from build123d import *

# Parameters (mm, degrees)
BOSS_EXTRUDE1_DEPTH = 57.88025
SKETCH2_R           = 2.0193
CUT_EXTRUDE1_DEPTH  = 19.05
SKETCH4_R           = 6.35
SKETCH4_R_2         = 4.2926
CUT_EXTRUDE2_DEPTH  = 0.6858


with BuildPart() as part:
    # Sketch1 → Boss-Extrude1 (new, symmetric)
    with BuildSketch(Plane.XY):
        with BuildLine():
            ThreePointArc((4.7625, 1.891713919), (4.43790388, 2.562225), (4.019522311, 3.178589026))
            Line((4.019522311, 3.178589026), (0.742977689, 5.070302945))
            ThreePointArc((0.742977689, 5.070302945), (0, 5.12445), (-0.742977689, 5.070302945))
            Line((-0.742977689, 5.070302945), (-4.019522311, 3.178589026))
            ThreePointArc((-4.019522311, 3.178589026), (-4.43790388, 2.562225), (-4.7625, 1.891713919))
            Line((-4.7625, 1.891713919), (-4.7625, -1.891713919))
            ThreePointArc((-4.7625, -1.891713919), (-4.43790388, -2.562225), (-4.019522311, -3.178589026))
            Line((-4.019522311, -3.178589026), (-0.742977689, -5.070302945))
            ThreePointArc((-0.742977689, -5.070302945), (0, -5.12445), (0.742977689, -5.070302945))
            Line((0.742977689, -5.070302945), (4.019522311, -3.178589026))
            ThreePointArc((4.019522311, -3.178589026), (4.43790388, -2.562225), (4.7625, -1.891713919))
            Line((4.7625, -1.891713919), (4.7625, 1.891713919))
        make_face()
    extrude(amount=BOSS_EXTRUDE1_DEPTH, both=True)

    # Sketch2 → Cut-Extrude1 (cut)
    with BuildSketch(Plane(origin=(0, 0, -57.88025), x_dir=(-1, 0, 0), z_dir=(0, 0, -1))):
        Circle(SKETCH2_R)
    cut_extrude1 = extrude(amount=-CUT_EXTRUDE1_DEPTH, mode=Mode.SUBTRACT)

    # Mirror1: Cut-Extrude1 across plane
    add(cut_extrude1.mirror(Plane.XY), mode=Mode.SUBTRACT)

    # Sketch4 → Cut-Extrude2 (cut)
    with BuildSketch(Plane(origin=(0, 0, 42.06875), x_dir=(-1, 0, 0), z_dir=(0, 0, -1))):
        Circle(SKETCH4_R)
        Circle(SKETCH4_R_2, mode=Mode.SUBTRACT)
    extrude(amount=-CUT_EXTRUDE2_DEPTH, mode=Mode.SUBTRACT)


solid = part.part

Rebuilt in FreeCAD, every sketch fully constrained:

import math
import FreeCAD as App
import Part
import Sketcher

V = App.Vector
Q = App.Units.Quantity

doc = App.newDocument("Part")
params = doc.addObject("Spreadsheet::Sheet", "Params")
for row, (alias, value) in enumerate([
    ("pad1_length", "4.5575 in"),
    ("sketch2_diameter", "0.159 in"),
    ("pocket1_length", "0.75 in"),
    ("sketch3_diameter", "0.5 in"),
    ("sketch3_diameter2", "0.338 in"),
    ("pocket2_length", "0.027 in"),
], start=1):
    params.set(f"A{row}", alias)
    params.set(f"B{row}", "=" + value)
    params.setAlias(f"B{row}", alias)

body = doc.addObject("PartDesign::Body", "Body")

sketch1 = body.newObject("Sketcher::SketchObject", "Sketch")
sketch1.AttachmentSupport = (doc.getObject("XY_Plane"), [""])
sketch1.MapMode = "FlatFace"
sketch1.addGeometry([
    Part.ArcOfCircle(Part.Circle(V(0, 0, 0), V(0, 0, 1), 5.1), math.radians(21.66), math.radians(38.34)),
    Part.LineSegment(V(4, 3.2, 0), V(0.7, 5.1, 0)),
    Part.ArcOfCircle(Part.Circle(V(0, 0, 0), V(0, 0, 1), 5.1), math.radians(81.66), math.radians(98.34)),
    Part.LineSegment(V(-0.7, 5.1, 0), V(-4, 3.2, 0)),
    Part.ArcOfCircle(Part.Circle(V(0, 0, 0), V(0, 0, 1), 5.1), math.radians(141.66), math.radians(158.34)),
    Part.LineSegment(V(-4.8, 1.9, 0), V(-4.8, -1.9, 0)),
    Part.ArcOfCircle(Part.Circle(V(0, 0, 0), V(0, 0, 1), 5.1), math.radians(-158.34), math.radians(-141.66)),
    Part.LineSegment(V(-4, -3.2, 0), V(-0.7, -5.1, 0)),
    Part.ArcOfCircle(Part.Circle(V(0, 0, 0), V(0, 0, 1), 5.1), math.radians(-98.34), math.radians(-81.66)),
    Part.LineSegment(V(0.7, -5.1, 0), V(4, -3.2, 0)),
    Part.ArcOfCircle(Part.Circle(V(0, 0, 0), V(0, 0, 1), 5.1), math.radians(-38.34), math.radians(-21.66)),
    Part.LineSegment(V(4.8, -1.9, 0), V(4.8, 1.9, 0)),
], False)
sketch1.addConstraint([
    Sketcher.Constraint("Coincident", 0, 2, 1, 1),
    Sketcher.Constraint("Coincident", 1, 2, 2, 1),
    Sketcher.Constraint("Coincident", 2, 2, 3, 1),
    Sketcher.Constraint("Coincident", 3, 2, 4, 1),
    Sketcher.Constraint("Coincident", 4, 2, 5, 1),
    Sketcher.Constraint("Coincident", 5, 2, 6, 1),
    Sketcher.Constraint("Coincident", 6, 2, 7, 1),
    Sketcher.Constraint("Coincident", 7, 2, 8, 1),
    Sketcher.Constraint("Coincident", 8, 2, 9, 1),
    Sketcher.Constraint("Coincident", 9, 2, 10, 1),
    Sketcher.Constraint("Coincident", 10, 2, 11, 1),
    Sketcher.Constraint("Coincident", 11, 2, 0, 1),
    Sketcher.Constraint("Vertical", 5),
    Sketcher.Constraint("Vertical", 11),
    Sketcher.Constraint("Coincident", 0, 3, -1, 1),
    Sketcher.Constraint("Coincident", 2, 3, -1, 1),
    Sketcher.Constraint("Coincident", 4, 3, -1, 1),
    Sketcher.Constraint("Coincident", 6, 3, -1, 1),
    Sketcher.Constraint("Coincident", 8, 3, -1, 1),
    Sketcher.Constraint("Coincident", 10, 3, -1, 1),
    Sketcher.Constraint("Equal", 0, 2),
    Sketcher.Constraint("Equal", 2, 4),
    Sketcher.Constraint("Equal", 4, 6),
    Sketcher.Constraint("Equal", 6, 8),
    Sketcher.Constraint("Equal", 8, 10),
    Sketcher.Constraint("Parallel", 1, 7),
    Sketcher.Constraint("Parallel", 3, 9),
    Sketcher.Constraint("Horizontal", 1, 2, 2, 2),
    Sketcher.Constraint("Horizontal", 0, 2, 3, 2),
    Sketcher.Constraint("Horizontal", 7, 2, 8, 2),
    Sketcher.Constraint("Horizontal", 5, 2, 10, 2),
    Sketcher.Constraint("Vertical", 3, 2, 6, 2),
    Sketcher.Constraint("Angle", 1, Q("150 deg")),
    Sketcher.Constraint("DistanceX", 4, 2, -1, 1, Q("0.1875 in")),
    Sketcher.Constraint("Radius", 0, Q("5.12445 mm")),
    Sketcher.Constraint("DistanceX", 2, 2, 0, 2, Q("0.1875 in")),
])
pad1 = body.newObject("PartDesign::Pad", "Pad")
pad1.Profile = sketch1
pad1.setExpression("Length", "Params.pad1_length")
pad1.Midplane = True

sketch2 = body.newObject("Sketcher::SketchObject", "Sketch001")
sketch2.AttachmentSupport = (doc.getObject("XY_Plane"), [""])
sketch2.MapMode = "FlatFace"
sketch2.AttachmentOffset = App.Placement(V(0, 0, -57.88025), App.Rotation())
sketch2.addGeometry(Part.Circle(V(0, 0, 0), V(0, 0, 1), 2), False)
sketch2.addConstraint([
    Sketcher.Constraint("Coincident", 0, 3, -1, 1),
    Sketcher.Constraint("Diameter", 0, Q("0.159 in")),
])
sketch2.setExpression("Constraints[1]", "Params.sketch2_diameter")
pocket1 = body.newObject("PartDesign::Pocket", "Pocket")
pocket1.Profile = sketch2
pocket1.setExpression("Length", "Params.pocket1_length")
pocket1.Reversed = True
doc.recompute()

mirrored = body.newObject("PartDesign::Mirrored", "Mirrored")
mirrored.Originals = [pocket1]
mirrored.MirrorPlane = (doc.getObject("XY_Plane"), [""])
body.Tip = mirrored

sketch3 = body.newObject("Sketcher::SketchObject", "Sketch002")
sketch3.AttachmentSupport = (doc.getObject("XY_Plane"), [""])
sketch3.MapMode = "FlatFace"
sketch3.AttachmentOffset = App.Placement(V(0, 0, 1.65625 * 25.4), App.Rotation())
sketch3.addGeometry([
    Part.Circle(V(0, 0, 0), V(0, 0, 1), 6.3),
    Part.Circle(V(0, 0, 0), V(0, 0, 1), 4.3),
], False)
sketch3.addConstraint([
    Sketcher.Constraint("Coincident", 0, 3, -1, 1),
    Sketcher.Constraint("Coincident", 1, 3, -1, 1),
    Sketcher.Constraint("Diameter", 0, Q("0.5 in")),
    Sketcher.Constraint("Diameter", 1, Q("0.338 in")),
])
sketch3.setExpression("Constraints[2]", "Params.sketch3_diameter")
sketch3.setExpression("Constraints[3]", "Params.sketch3_diameter2")
pocket2 = body.newObject("PartDesign::Pocket", "Pocket001")
pocket2.Profile = sketch3
pocket2.setExpression("Length", "Params.pocket2_length")
pocket2.Reversed = True

doc.recompute()
